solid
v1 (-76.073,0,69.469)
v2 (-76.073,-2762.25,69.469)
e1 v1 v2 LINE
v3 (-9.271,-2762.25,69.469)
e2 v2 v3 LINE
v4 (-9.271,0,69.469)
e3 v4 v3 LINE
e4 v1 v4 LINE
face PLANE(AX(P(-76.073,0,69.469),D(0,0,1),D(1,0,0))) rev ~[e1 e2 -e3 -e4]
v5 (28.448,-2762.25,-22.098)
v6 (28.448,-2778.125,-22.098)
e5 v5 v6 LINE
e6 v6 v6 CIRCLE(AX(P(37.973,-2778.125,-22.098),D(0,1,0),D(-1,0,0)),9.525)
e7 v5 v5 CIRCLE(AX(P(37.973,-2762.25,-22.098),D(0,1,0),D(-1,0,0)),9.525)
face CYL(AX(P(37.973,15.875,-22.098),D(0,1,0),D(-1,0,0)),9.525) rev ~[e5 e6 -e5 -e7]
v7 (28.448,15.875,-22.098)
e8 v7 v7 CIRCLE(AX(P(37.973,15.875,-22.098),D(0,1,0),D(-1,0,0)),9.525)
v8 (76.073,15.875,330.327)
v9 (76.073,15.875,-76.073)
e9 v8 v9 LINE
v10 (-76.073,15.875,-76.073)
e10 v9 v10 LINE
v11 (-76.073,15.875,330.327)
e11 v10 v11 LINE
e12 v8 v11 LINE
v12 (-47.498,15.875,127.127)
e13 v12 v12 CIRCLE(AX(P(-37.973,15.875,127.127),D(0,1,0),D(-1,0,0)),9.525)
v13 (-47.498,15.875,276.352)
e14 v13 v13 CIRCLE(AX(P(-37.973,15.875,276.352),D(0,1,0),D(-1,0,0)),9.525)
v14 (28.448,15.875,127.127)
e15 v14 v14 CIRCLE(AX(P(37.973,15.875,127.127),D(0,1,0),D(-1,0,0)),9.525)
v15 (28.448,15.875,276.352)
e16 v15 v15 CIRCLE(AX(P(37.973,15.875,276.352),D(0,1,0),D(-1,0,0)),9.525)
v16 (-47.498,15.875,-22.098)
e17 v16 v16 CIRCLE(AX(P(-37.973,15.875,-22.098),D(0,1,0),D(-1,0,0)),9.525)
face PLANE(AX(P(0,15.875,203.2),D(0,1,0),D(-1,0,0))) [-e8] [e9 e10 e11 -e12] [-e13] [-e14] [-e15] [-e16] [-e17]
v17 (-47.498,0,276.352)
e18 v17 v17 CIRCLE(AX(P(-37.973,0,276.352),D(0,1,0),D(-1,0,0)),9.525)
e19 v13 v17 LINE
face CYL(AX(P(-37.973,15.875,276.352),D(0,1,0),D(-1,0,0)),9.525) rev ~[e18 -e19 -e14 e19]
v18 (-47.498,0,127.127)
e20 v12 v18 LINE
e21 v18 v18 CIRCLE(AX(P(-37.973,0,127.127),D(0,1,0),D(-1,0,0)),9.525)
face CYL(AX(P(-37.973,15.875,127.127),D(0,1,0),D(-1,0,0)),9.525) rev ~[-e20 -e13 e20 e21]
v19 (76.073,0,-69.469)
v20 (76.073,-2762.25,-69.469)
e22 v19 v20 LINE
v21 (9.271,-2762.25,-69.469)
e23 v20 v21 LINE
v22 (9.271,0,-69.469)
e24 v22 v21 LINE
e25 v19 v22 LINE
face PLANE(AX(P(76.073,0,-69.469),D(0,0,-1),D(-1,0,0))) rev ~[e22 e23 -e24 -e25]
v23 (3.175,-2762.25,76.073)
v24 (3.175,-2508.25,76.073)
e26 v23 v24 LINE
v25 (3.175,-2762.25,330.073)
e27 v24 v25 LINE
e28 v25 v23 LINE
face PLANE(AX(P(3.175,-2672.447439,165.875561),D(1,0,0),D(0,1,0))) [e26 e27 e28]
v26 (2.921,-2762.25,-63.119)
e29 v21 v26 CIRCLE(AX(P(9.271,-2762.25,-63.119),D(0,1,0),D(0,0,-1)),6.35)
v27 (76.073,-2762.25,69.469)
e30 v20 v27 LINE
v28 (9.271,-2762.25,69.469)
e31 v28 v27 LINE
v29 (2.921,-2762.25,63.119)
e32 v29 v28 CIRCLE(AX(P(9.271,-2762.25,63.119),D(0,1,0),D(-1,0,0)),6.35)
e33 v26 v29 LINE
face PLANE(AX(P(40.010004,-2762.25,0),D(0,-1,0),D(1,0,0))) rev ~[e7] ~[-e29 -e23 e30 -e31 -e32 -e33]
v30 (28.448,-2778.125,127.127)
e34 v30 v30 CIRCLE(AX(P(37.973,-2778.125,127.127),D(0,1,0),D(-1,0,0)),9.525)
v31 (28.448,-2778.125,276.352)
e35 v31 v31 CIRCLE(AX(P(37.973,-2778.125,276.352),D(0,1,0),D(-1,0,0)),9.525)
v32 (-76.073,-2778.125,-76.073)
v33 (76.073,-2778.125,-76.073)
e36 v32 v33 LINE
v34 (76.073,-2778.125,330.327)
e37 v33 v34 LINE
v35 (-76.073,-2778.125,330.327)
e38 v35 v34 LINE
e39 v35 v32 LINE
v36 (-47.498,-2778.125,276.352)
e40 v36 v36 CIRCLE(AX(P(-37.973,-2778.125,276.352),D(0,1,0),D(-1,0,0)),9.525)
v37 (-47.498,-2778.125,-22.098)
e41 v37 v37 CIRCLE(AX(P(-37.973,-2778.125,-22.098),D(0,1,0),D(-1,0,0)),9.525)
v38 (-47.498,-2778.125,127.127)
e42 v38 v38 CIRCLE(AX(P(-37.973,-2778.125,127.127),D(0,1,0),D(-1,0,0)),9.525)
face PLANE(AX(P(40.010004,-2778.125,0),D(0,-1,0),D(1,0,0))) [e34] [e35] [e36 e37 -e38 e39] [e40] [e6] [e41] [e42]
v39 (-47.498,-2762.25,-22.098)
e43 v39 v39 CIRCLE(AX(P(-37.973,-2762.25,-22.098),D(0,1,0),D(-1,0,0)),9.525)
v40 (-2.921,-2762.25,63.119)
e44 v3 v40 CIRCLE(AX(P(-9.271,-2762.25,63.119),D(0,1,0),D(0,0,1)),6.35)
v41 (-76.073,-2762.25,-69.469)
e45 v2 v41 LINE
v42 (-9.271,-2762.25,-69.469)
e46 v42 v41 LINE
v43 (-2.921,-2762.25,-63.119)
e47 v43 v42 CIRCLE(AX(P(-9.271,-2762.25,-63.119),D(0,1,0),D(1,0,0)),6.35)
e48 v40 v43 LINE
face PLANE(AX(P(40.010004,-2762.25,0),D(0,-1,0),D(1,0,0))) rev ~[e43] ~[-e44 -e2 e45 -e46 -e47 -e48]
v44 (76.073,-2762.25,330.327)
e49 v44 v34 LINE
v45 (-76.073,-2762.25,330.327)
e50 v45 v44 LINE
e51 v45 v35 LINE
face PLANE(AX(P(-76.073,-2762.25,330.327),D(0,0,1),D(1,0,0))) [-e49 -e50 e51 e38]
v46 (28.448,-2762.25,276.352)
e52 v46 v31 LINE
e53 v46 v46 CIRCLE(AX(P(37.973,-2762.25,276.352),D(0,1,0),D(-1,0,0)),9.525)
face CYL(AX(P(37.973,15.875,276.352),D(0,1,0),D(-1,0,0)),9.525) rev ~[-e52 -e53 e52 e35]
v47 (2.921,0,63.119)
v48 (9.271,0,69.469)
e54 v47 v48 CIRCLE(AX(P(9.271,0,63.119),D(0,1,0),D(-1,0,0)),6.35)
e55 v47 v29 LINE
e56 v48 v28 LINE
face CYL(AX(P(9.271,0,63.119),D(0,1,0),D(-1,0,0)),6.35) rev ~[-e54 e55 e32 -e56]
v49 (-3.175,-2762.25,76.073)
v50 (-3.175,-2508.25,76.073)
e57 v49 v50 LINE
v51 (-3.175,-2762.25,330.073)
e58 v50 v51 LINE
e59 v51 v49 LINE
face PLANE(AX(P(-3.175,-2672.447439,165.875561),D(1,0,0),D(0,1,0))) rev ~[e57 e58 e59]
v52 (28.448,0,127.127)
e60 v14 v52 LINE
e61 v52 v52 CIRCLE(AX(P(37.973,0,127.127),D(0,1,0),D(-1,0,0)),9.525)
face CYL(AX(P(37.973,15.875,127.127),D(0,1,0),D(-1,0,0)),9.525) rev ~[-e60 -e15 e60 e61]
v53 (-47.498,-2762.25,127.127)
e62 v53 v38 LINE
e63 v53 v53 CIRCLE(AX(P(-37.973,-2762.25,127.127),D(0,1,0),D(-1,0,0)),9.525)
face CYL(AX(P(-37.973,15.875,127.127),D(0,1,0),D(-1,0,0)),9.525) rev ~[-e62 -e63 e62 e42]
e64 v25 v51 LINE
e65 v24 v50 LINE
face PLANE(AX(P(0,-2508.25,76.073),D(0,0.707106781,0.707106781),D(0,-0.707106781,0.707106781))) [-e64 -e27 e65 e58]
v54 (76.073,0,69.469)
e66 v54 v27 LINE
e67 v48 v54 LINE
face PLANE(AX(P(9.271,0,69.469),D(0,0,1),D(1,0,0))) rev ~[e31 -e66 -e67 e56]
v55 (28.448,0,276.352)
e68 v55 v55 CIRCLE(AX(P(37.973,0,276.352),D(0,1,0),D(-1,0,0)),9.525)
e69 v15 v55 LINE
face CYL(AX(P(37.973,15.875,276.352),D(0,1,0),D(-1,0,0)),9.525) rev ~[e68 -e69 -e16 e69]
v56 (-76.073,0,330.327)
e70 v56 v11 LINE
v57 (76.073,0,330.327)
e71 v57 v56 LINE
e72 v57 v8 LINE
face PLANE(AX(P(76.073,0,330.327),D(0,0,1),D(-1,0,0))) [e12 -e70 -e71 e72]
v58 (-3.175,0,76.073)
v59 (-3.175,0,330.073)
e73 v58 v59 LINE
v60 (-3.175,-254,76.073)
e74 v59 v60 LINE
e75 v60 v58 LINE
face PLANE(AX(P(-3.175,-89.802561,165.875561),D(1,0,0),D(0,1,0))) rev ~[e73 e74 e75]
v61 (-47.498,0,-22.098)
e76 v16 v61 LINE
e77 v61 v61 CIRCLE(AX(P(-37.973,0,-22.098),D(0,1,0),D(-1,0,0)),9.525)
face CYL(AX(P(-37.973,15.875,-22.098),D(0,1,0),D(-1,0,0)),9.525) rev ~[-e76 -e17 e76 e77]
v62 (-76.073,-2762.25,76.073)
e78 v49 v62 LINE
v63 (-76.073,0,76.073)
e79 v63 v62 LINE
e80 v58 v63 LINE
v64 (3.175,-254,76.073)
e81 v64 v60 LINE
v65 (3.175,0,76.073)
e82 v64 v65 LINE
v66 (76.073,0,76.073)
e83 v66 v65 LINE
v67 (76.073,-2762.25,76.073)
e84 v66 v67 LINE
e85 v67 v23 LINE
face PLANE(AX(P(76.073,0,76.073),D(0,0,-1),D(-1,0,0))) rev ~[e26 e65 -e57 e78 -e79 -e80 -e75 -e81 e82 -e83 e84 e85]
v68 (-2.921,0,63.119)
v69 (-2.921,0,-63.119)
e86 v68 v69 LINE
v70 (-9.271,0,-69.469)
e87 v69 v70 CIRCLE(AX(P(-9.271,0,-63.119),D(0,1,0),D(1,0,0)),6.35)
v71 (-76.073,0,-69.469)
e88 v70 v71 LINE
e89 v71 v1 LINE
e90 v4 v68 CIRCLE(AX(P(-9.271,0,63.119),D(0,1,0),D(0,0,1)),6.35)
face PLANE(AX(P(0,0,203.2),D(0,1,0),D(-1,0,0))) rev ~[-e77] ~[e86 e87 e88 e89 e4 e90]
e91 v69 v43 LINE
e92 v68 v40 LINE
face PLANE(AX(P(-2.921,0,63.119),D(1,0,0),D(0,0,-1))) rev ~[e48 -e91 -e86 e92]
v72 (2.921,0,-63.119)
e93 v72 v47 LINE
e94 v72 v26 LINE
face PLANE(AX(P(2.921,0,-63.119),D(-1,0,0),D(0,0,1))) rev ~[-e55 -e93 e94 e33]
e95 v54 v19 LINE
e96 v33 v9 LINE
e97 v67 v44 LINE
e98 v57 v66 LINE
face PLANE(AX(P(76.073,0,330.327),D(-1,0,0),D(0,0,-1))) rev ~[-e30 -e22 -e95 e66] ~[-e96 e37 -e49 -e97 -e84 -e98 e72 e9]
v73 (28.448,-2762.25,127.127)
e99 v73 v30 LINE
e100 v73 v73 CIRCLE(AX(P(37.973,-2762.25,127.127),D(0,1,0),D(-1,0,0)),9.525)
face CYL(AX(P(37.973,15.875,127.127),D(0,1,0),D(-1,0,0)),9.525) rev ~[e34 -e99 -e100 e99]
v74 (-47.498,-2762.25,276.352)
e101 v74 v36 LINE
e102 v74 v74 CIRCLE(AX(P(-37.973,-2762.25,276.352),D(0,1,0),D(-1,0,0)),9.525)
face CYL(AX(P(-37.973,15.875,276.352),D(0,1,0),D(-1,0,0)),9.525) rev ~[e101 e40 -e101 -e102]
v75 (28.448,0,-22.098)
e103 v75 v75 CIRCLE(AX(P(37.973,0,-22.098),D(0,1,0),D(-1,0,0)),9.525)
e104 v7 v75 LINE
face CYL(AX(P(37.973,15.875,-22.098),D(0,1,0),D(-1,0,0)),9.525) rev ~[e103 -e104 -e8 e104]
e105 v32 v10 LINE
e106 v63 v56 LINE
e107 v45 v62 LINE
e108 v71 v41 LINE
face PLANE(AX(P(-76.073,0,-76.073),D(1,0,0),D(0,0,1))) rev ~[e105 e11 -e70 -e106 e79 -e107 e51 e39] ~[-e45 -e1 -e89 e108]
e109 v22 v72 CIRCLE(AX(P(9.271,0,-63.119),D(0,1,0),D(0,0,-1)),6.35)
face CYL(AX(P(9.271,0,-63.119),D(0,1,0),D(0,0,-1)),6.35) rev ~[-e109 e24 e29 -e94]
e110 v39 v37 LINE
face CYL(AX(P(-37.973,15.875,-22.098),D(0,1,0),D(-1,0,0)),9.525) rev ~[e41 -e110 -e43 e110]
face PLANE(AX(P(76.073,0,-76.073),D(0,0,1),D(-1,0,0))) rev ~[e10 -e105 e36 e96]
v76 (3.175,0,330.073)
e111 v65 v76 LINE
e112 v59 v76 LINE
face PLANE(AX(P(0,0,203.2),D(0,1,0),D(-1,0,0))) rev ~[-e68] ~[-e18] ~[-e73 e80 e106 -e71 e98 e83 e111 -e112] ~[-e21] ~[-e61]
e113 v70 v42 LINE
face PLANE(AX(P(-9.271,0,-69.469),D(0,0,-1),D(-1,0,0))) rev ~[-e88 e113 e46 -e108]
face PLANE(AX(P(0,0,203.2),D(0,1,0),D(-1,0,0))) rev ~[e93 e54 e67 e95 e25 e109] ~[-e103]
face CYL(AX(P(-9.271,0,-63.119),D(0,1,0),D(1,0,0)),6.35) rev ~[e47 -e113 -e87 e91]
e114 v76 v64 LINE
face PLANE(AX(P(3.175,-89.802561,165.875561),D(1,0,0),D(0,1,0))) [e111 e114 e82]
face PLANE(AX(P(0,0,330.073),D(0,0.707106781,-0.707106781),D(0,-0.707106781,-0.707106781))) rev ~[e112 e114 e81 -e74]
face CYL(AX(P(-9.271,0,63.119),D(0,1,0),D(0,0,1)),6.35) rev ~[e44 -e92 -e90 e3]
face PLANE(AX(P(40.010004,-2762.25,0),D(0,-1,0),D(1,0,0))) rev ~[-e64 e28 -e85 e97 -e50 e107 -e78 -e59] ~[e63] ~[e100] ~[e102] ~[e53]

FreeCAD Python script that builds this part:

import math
import FreeCAD as App
import Part
import Sketcher
from FreeCAD import Vector
Q = App.Units.Quantity

doc = App.newDocument("Part")
body = doc.addObject("PartDesign::Body", "Body")

# Sketch on XZ plane
sketch1 = doc.addObject("Sketcher::SketchObject", "Sketch")
body.addObject(sketch1)
sketch1.AttachmentSupport = (doc.XZ_Plane, [""])
sketch1.MapMode = "FlatFace"
sketch1.addGeometry(Part.LineSegment(Vector(76, 76, 0), Vector(-76, 76, 0)), False)
sketch1.addGeometry(Part.LineSegment(Vector(-76, 76, 0), Vector(-76, 69, 0)), False)
sketch1.addGeometry(Part.LineSegment(Vector(-76, 69, 0), Vector(-9, 69, 0)), False)
sketch1.addGeometry(Part.ArcOfCircle(Part.Circle(Vector(-9, 63, 0), Vector(0, 0, 1), 6), math.radians(0), math.radians(90)), False)
sketch1.addGeometry(Part.LineSegment(Vector(-3, 63, 0), Vector(-3, -63, 0)), False)
sketch1.addGeometry(Part.ArcOfCircle(Part.Circle(Vector(-9, -63, 0), Vector(0, 0, 1), 6), math.radians(-90), math.radians(0)), False)
sketch1.addGeometry(Part.LineSegment(Vector(-9, -69, 0), Vector(-76, -69, 0)), False)
sketch1.addGeometry(Part.LineSegment(Vector(-76, -69, 0), Vector(-76, -76, 0)), False)
sketch1.addGeometry(Part.LineSegment(Vector(-76, -76, 0), Vector(76, -76, 0)), False)
sketch1.addGeometry(Part.LineSegment(Vector(76, -76, 0), Vector(76, -69, 0)), False)
sketch1.addGeometry(Part.LineSegment(Vector(76, -69, 0), Vector(9, -69, 0)), False)
sketch1.addGeometry(Part.ArcOfCircle(Part.Circle(Vector(9, -63, 0), Vector(0, 0, 1), 6), math.radians(180), math.radians(270)), False)
sketch1.addGeometry(Part.LineSegment(Vector(3, -63, 0), Vector(3, 63, 0)), False)
sketch1.addGeometry(Part.ArcOfCircle(Part.Circle(Vector(9, 63, 0), Vector(0, 0, 1), 6), math.radians(90), math.radians(180)), False)
sketch1.addGeometry(Part.LineSegment(Vector(9, 69, 0), Vector(76, 69, 0)), False)
sketch1.addGeometry(Part.LineSegment(Vector(76, 69, 0), Vector(76, 76, 0)), False)
sketch1.addConstraint(Sketcher.Constraint("Coincident", 0, 2, 1, 1))
sketch1.addConstraint(Sketcher.Constraint("Coincident", 1, 2, 2, 1))
sketch1.addConstraint(Sketcher.Constraint("Tangent", 2, 2, 3, 2))
sketch1.addConstraint(Sketcher.Constraint("Tangent", 3, 1, 4, 1))
sketch1.addConstraint(Sketcher.Constraint("Tangent", 4, 2, 5, 2))
sketch1.addConstraint(Sketcher.Constraint("Tangent", 5, 1, 6, 1))
sketch1.addConstraint(Sketcher.Constraint("Coincident", 6, 2, 7, 1))
sketch1.addConstraint(Sketcher.Constraint("Coincident", 7, 2, 8, 1))
sketch1.addConstraint(Sketcher.Constraint("Coincident", 8, 2, 9, 1))
sketch1.addConstraint(Sketcher.Constraint("Coincident", 9, 2, 10, 1))
sketch1.addConstraint(Sketcher.Constraint("Tangent", 10, 2, 11, 2))
sketch1.addConstraint(Sketcher.Constraint("Tangent", 11, 1, 12, 1))
sketch1.addConstraint(Sketcher.Constraint("Tangent", 12, 2, 13, 2))
sketch1.addConstraint(Sketcher.Constraint("Tangent", 13, 1, 14, 1))
sketch1.addConstraint(Sketcher.Constraint("Coincident", 14, 2, 15, 1))
sketch1.addConstraint(Sketcher.Constraint("Coincident", 15, 2, 0, 1))
sketch1.addConstraint(Sketcher.Constraint("Horizontal", 0))
sketch1.addConstraint(Sketcher.Constraint("Vertical", 1))
sketch1.addConstraint(Sketcher.Constraint("Horizontal", 2))
sketch1.addConstraint(Sketcher.Constraint("Vertical", 4))
sketch1.addConstraint(Sketcher.Constraint("Horizontal", 6))
sketch1.addConstraint(Sketcher.Constraint("Vertical", 7))
sketch1.addConstraint(Sketcher.Constraint("Horizontal", 8))
sketch1.addConstraint(Sketcher.Constraint("Vertical", 9))
sketch1.addConstraint(Sketcher.Constraint("Horizontal", 10))
sketch1.addConstraint(Sketcher.Constraint("Vertical", 12))
sketch1.addConstraint(Sketcher.Constraint("Horizontal", 14))
sketch1.addConstraint(Sketcher.Constraint("Vertical", 15))
sketch1.addConstraint(Sketcher.Constraint("Equal", 3, 5))
sketch1.addConstraint(Sketcher.Constraint("Equal", 5, 11))
sketch1.addConstraint(Sketcher.Constraint("Equal", 11, 13))
sketch1.addConstraint(Sketcher.Constraint("Symmetric", 3, 3, 11, 3, -1, 1))
sketch1.addConstraint(Sketcher.Constraint("Symmetric", 0, 2, 8, 2, -1, 1))
sketch1.addConstraint(Sketcher.Constraint("Symmetric", 6, 2, 14, 2, -1, 1))
sketch1.addConstraint(Sketcher.Constraint("Symmetric", 6, 2, 9, 2, -2))
sketch1.addConstraint(Sketcher.Constraint("Radius", 3, Q("0.25 in")))
sketch1.addConstraint(Sketcher.Constraint("DistanceX", 0, 2, 0, 1, Q("5.99 in")))
sketch1.addConstraint(Sketcher.Constraint("DistanceX", 2, 1, 2, 2, Q("2.63 in")))
sketch1.addConstraint(Sketcher.Constraint("DistanceY", 1, 2, 1, 1, Q("0.26 in")))
sketch1.addConstraint(Sketcher.Constraint("DistanceY", 4, 2, 4, 1, Q("4.97 in")))
pad1 = doc.addObject("PartDesign::Pad", "Pad")
body.addObject(pad1)
pad1.Profile = sketch1
pad1.Length = Q("108.75 in")

# Sketch on XZ plane
sketch2 = doc.addObject("Sketcher::SketchObject", "Sketch001")
body.addObject(sketch2)
sketch2.AttachmentSupport = (doc.XZ_Plane, [""])
sketch2.MapMode = "FlatFace"
sketch2.AttachmentOffset = App.Placement(Vector(0, 0, 108.75 * 25.4), App.Rotation())
sketch2.addGeometry(Part.LineSegment(Vector(76, 330, 0), Vector(-76, 330, 0)), False)
sketch2.addGeometry(Part.LineSegment(Vector(-76, 330, 0), Vector(-76, -76, 0)), False)
sketch2.addGeometry(Part.LineSegment(Vector(-76, -76, 0), Vector(76, -76, 0)), False)
sketch2.addGeometry(Part.LineSegment(Vector(76, -76, 0), Vector(76, 330, 0)), False)
sketch2.addConstraint(Sketcher.Constraint("Coincident", 0, 2, 1, 1))
sketch2.addConstraint(Sketcher.Constraint("Coincident", 1, 2, 2, 1))
sketch2.addConstraint(Sketcher.Constraint("Coincident", 2, 2, 3, 1))
sketch2.addConstraint(Sketcher.Constraint("Coincident", 3, 2, 0, 1))
sketch2.addConstraint(Sketcher.Constraint("Horizontal", 0))
sketch2.addConstraint(Sketcher.Constraint("Vertical", 1))
sketch2.addConstraint(Sketcher.Constraint("Horizontal", 2))
sketch2.addConstraint(Sketcher.Constraint("Vertical", 3))
sketch2.addConstraint(Sketcher.Constraint("DistanceY", 1, 2, 1, 1, Q("16 in")))
sketch2.addConstraint(Sketcher.Constraint("DistanceX", 0, 2, 0, 1, Q("5.99 in")))
sketch2.addConstraint(Sketcher.Constraint("DistanceX", 0, 2, -1, 1, Q("2.995 in")))
sketch2.addConstraint(Sketcher.Constraint("DistanceY", -1, 1, 0, 2, Q("13.005 in")))
pad2 = doc.addObject("PartDesign::Pad", "Pad001")
body.addObject(pad2)
pad2.Profile = sketch2
pad2.Length = Q("0.625 in")

# Sketch on XZ plane
sketch3 = doc.addObject("Sketcher::SketchObject", "Sketch002")
body.addObject(sketch3)
sketch3.AttachmentSupport = (doc.XZ_Plane, [""])
sketch3.MapMode = "FlatFace"
sketch3.addGeometry(Part.LineSegment(Vector(76, 330, 0), Vector(76, -76, 0)), False)
sketch3.addGeometry(Part.LineSegment(Vector(76, -76, 0), Vector(-76, -76, 0)), False)
sketch3.addGeometry(Part.LineSegment(Vector(-76, -76, 0), Vector(-76, 330, 0)), False)
sketch3.addGeometry(Part.LineSegment(Vector(-76, 330, 0), Vector(76, 330, 0)), False)
sketch3.addConstraint(Sketcher.Constraint("Coincident", 0, 2, 1, 1))
sketch3.addConstraint(Sketcher.Constraint("Coincident", 1, 2, 2, 1))
sketch3.addConstraint(Sketcher.Constraint("Coincident", 2, 2, 3, 1))
sketch3.addConstraint(Sketcher.Constraint("Coincident", 3, 2, 0, 1))
sketch3.addConstraint(Sketcher.Constraint("Vertical", 0))
sketch3.addConstraint(Sketcher.Constraint("Horizontal", 1))
sketch3.addConstraint(Sketcher.Constraint("Vertical", 2))
sketch3.addConstraint(Sketcher.Constraint("Horizontal", 3))
sketch3.addConstraint(Sketcher.Constraint("DistanceY", 0, 2, 0, 1, Q("16 in")))
sketch3.addConstraint(Sketcher.Constraint("DistanceX", 1, 2, 1, 1, Q("5.99 in")))
sketch3.addConstraint(Sketcher.Constraint("DistanceX", -1, 1, 0, 2, Q("2.995 in")))
sketch3.addConstraint(Sketcher.Constraint("DistanceY", 0, 2, -1, 1, Q("2.995 in")))
pad3 = doc.addObject("PartDesign::Pad", "Pad002")
body.addObject(pad3)
pad3.Profile = sketch3
pad3.Length = Q("0.625 in")
pad3.Reversed = True

# Sketch on YZ plane
sketch4 = doc.addObject("Sketcher::SketchObject", "Sketch003")
body.addObject(sketch4)
sketch4.AttachmentSupport = (doc.YZ_Plane, [""])
sketch4.MapMode = "FlatFace"
sketch4.addGeometry(Part.LineSegment(Vector(0, 76, 0), Vector(0, 330, 0)), False)
sketch4.addGeometry(Part.LineSegment(Vector(0, 330, 0), Vector(-254, 76, 0)), False)
sketch4.addGeometry(Part.LineSegment(Vector(-254, 76, 0), Vector(0, 76, 0)), False)
sketch4.addGeometry(Part.LineSegment(Vector(-2762, 330, 0), Vector(-2762, 76, 0)), False)
sketch4.addGeometry(Part.LineSegment(Vector(-2762, 76, 0), Vector(-2508, 76, 0)), False)
sketch4.addGeometry(Part.LineSegment(Vector(-2508, 76, 0), Vector(-2762, 330, 0)), False)
sketch4.addConstraint(Sketcher.Constraint("Coincident", 0, 2, 1, 1))
sketch4.addConstraint(Sketcher.Constraint("Coincident", 1, 2, 2, 1))
sketch4.addConstraint(Sketcher.Constraint("Coincident", 2, 2, 0, 1))
sketch4.addConstraint(Sketcher.Constraint("Coincident", 3, 2, 4, 1))
sketch4.addConstraint(Sketcher.Constraint("Coincident", 4, 2, 5, 1))
sketch4.addConstraint(Sketcher.Constraint("Coincident", 5, 2, 3, 1))
sketch4.addConstraint(Sketcher.Constraint("Vertical", 0))
sketch4.addConstraint(Sketcher.Constraint("Horizontal", 2))
sketch4.addConstraint(Sketcher.Constraint("Vertical", 3))
sketch4.addConstraint(Sketcher.Constraint("Horizontal", 4))
sketch4.addConstraint(Sketcher.Constraint("PointOnObject", 0, 2, -2))
sketch4.addConstraint(Sketcher.Constraint("Perpendicular", 1, 5))
sketch4.addConstraint(Sketcher.Constraint("Horizontal", 2, 2, 3, 2))
sketch4.addConstraint(Sketcher.Constraint("Horizontal", 0, 2, 5, 2))
sketch4.addConstraint(Sketcher.Constraint("Equal", 2, 4))
sketch4.addConstraint(Sketcher.Constraint("DistanceX", 2, 1, 2, 2, Q("10 in")))
sketch4.addConstraint(Sketcher.Constraint("DistanceX", 3, 2, -1, 1, Q("108.75 in")))
sketch4.addConstraint(Sketcher.Constraint("DistanceY", -1, 1, 0, 2, Q("12.995 in")))
pad4 = doc.addObject("PartDesign::Pad", "Pad003")
body.addObject(pad4)
pad4.Profile = sketch4
pad4.Length = Q("0.25 in")
pad4.Midplane = True

# Sketch on XZ plane
sketch5 = doc.addObject("Sketcher::SketchObject", "Sketch004")
body.addObject(sketch5)
sketch5.AttachmentSupport = (doc.XZ_Plane, [""])
sketch5.MapMode = "FlatFace"
sketch5.AttachmentOffset = App.Placement(Vector(0, 0, -0.625 * 25.4), App.Rotation())
sketch5.addGeometry(Part.Circle(Vector(38, 276, 0), Vector(0, 0, 1), 10), False)
sketch5.addGeometry(Part.Circle(Vector(-38, 127, 0), Vector(0, 0, 1), 10), False)
sketch5.addGeometry(Part.Circle(Vector(38, 127, 0), Vector(0, 0, 1), 10), False)
sketch5.addGeometry(Part.Circle(Vector(38, -22, 0), Vector(0, 0, 1), 10), False)
sketch5.addGeometry(Part.Circle(Vector(-38, -22, 0), Vector(0, 0, 1), 10), False)
sketch5.addGeometry(Part.Circle(Vector(-38, 276, 0), Vector(0, 0, 1), 10), False)
sketch5.addConstraint(Sketcher.Constraint("Equal", 0, 1))
sketch5.addConstraint(Sketcher.Constraint("Equal", 1, 2))
sketch5.addConstraint(Sketcher.Constraint("Equal", 2, 3))
sketch5.addConstraint(Sketcher.Constraint("Equal", 3, 4))
sketch5.addConstraint(Sketcher.Constraint("Equal", 4, 5))
sketch5.addConstraint(Sketcher.Constraint("Symmetric", 1, 3, 2, 3, -2))
sketch5.addConstraint(Sketcher.Constraint("Symmetric", 3, 3, 4, 3, -2))
sketch5.addConstraint(Sketcher.Constraint("Symmetric", 0, 3, 5, 3, -2))
sketch5.addConstraint(Sketcher.Constraint("Vertical", 0, 3, 2, 3))
sketch5.addConstraint(Sketcher.Constraint("Vertical", 2, 3, 3, 3))
sketch5.addConstraint(Sketcher.Constraint("Diameter", 0, Q("0.75 in")))
sketch5.addConstraint(Sketcher.Constraint("DistanceY", -1, 1, 0, 3, Q("10.88 in")))
sketch5.addConstraint(Sketcher.Constraint("DistanceY", 3, 3, -1, 1, Q("0.87 in")))
sketch5.addConstraint(Sketcher.Constraint("DistanceX", 1, 3, 0, 3, Q("2.99 in")))
sketch5.addConstraint(Sketcher.Constraint("DistanceY", -1, 1, 1, 3, Q("5.005 in")))
pocket1 = doc.addObject("PartDesign::Pocket", "Pocket")
body.addObject(pocket1)
pocket1.Profile = sketch5
pocket1.Length = Q("110 in")
pocket1.Reversed = True

doc.recompute()
